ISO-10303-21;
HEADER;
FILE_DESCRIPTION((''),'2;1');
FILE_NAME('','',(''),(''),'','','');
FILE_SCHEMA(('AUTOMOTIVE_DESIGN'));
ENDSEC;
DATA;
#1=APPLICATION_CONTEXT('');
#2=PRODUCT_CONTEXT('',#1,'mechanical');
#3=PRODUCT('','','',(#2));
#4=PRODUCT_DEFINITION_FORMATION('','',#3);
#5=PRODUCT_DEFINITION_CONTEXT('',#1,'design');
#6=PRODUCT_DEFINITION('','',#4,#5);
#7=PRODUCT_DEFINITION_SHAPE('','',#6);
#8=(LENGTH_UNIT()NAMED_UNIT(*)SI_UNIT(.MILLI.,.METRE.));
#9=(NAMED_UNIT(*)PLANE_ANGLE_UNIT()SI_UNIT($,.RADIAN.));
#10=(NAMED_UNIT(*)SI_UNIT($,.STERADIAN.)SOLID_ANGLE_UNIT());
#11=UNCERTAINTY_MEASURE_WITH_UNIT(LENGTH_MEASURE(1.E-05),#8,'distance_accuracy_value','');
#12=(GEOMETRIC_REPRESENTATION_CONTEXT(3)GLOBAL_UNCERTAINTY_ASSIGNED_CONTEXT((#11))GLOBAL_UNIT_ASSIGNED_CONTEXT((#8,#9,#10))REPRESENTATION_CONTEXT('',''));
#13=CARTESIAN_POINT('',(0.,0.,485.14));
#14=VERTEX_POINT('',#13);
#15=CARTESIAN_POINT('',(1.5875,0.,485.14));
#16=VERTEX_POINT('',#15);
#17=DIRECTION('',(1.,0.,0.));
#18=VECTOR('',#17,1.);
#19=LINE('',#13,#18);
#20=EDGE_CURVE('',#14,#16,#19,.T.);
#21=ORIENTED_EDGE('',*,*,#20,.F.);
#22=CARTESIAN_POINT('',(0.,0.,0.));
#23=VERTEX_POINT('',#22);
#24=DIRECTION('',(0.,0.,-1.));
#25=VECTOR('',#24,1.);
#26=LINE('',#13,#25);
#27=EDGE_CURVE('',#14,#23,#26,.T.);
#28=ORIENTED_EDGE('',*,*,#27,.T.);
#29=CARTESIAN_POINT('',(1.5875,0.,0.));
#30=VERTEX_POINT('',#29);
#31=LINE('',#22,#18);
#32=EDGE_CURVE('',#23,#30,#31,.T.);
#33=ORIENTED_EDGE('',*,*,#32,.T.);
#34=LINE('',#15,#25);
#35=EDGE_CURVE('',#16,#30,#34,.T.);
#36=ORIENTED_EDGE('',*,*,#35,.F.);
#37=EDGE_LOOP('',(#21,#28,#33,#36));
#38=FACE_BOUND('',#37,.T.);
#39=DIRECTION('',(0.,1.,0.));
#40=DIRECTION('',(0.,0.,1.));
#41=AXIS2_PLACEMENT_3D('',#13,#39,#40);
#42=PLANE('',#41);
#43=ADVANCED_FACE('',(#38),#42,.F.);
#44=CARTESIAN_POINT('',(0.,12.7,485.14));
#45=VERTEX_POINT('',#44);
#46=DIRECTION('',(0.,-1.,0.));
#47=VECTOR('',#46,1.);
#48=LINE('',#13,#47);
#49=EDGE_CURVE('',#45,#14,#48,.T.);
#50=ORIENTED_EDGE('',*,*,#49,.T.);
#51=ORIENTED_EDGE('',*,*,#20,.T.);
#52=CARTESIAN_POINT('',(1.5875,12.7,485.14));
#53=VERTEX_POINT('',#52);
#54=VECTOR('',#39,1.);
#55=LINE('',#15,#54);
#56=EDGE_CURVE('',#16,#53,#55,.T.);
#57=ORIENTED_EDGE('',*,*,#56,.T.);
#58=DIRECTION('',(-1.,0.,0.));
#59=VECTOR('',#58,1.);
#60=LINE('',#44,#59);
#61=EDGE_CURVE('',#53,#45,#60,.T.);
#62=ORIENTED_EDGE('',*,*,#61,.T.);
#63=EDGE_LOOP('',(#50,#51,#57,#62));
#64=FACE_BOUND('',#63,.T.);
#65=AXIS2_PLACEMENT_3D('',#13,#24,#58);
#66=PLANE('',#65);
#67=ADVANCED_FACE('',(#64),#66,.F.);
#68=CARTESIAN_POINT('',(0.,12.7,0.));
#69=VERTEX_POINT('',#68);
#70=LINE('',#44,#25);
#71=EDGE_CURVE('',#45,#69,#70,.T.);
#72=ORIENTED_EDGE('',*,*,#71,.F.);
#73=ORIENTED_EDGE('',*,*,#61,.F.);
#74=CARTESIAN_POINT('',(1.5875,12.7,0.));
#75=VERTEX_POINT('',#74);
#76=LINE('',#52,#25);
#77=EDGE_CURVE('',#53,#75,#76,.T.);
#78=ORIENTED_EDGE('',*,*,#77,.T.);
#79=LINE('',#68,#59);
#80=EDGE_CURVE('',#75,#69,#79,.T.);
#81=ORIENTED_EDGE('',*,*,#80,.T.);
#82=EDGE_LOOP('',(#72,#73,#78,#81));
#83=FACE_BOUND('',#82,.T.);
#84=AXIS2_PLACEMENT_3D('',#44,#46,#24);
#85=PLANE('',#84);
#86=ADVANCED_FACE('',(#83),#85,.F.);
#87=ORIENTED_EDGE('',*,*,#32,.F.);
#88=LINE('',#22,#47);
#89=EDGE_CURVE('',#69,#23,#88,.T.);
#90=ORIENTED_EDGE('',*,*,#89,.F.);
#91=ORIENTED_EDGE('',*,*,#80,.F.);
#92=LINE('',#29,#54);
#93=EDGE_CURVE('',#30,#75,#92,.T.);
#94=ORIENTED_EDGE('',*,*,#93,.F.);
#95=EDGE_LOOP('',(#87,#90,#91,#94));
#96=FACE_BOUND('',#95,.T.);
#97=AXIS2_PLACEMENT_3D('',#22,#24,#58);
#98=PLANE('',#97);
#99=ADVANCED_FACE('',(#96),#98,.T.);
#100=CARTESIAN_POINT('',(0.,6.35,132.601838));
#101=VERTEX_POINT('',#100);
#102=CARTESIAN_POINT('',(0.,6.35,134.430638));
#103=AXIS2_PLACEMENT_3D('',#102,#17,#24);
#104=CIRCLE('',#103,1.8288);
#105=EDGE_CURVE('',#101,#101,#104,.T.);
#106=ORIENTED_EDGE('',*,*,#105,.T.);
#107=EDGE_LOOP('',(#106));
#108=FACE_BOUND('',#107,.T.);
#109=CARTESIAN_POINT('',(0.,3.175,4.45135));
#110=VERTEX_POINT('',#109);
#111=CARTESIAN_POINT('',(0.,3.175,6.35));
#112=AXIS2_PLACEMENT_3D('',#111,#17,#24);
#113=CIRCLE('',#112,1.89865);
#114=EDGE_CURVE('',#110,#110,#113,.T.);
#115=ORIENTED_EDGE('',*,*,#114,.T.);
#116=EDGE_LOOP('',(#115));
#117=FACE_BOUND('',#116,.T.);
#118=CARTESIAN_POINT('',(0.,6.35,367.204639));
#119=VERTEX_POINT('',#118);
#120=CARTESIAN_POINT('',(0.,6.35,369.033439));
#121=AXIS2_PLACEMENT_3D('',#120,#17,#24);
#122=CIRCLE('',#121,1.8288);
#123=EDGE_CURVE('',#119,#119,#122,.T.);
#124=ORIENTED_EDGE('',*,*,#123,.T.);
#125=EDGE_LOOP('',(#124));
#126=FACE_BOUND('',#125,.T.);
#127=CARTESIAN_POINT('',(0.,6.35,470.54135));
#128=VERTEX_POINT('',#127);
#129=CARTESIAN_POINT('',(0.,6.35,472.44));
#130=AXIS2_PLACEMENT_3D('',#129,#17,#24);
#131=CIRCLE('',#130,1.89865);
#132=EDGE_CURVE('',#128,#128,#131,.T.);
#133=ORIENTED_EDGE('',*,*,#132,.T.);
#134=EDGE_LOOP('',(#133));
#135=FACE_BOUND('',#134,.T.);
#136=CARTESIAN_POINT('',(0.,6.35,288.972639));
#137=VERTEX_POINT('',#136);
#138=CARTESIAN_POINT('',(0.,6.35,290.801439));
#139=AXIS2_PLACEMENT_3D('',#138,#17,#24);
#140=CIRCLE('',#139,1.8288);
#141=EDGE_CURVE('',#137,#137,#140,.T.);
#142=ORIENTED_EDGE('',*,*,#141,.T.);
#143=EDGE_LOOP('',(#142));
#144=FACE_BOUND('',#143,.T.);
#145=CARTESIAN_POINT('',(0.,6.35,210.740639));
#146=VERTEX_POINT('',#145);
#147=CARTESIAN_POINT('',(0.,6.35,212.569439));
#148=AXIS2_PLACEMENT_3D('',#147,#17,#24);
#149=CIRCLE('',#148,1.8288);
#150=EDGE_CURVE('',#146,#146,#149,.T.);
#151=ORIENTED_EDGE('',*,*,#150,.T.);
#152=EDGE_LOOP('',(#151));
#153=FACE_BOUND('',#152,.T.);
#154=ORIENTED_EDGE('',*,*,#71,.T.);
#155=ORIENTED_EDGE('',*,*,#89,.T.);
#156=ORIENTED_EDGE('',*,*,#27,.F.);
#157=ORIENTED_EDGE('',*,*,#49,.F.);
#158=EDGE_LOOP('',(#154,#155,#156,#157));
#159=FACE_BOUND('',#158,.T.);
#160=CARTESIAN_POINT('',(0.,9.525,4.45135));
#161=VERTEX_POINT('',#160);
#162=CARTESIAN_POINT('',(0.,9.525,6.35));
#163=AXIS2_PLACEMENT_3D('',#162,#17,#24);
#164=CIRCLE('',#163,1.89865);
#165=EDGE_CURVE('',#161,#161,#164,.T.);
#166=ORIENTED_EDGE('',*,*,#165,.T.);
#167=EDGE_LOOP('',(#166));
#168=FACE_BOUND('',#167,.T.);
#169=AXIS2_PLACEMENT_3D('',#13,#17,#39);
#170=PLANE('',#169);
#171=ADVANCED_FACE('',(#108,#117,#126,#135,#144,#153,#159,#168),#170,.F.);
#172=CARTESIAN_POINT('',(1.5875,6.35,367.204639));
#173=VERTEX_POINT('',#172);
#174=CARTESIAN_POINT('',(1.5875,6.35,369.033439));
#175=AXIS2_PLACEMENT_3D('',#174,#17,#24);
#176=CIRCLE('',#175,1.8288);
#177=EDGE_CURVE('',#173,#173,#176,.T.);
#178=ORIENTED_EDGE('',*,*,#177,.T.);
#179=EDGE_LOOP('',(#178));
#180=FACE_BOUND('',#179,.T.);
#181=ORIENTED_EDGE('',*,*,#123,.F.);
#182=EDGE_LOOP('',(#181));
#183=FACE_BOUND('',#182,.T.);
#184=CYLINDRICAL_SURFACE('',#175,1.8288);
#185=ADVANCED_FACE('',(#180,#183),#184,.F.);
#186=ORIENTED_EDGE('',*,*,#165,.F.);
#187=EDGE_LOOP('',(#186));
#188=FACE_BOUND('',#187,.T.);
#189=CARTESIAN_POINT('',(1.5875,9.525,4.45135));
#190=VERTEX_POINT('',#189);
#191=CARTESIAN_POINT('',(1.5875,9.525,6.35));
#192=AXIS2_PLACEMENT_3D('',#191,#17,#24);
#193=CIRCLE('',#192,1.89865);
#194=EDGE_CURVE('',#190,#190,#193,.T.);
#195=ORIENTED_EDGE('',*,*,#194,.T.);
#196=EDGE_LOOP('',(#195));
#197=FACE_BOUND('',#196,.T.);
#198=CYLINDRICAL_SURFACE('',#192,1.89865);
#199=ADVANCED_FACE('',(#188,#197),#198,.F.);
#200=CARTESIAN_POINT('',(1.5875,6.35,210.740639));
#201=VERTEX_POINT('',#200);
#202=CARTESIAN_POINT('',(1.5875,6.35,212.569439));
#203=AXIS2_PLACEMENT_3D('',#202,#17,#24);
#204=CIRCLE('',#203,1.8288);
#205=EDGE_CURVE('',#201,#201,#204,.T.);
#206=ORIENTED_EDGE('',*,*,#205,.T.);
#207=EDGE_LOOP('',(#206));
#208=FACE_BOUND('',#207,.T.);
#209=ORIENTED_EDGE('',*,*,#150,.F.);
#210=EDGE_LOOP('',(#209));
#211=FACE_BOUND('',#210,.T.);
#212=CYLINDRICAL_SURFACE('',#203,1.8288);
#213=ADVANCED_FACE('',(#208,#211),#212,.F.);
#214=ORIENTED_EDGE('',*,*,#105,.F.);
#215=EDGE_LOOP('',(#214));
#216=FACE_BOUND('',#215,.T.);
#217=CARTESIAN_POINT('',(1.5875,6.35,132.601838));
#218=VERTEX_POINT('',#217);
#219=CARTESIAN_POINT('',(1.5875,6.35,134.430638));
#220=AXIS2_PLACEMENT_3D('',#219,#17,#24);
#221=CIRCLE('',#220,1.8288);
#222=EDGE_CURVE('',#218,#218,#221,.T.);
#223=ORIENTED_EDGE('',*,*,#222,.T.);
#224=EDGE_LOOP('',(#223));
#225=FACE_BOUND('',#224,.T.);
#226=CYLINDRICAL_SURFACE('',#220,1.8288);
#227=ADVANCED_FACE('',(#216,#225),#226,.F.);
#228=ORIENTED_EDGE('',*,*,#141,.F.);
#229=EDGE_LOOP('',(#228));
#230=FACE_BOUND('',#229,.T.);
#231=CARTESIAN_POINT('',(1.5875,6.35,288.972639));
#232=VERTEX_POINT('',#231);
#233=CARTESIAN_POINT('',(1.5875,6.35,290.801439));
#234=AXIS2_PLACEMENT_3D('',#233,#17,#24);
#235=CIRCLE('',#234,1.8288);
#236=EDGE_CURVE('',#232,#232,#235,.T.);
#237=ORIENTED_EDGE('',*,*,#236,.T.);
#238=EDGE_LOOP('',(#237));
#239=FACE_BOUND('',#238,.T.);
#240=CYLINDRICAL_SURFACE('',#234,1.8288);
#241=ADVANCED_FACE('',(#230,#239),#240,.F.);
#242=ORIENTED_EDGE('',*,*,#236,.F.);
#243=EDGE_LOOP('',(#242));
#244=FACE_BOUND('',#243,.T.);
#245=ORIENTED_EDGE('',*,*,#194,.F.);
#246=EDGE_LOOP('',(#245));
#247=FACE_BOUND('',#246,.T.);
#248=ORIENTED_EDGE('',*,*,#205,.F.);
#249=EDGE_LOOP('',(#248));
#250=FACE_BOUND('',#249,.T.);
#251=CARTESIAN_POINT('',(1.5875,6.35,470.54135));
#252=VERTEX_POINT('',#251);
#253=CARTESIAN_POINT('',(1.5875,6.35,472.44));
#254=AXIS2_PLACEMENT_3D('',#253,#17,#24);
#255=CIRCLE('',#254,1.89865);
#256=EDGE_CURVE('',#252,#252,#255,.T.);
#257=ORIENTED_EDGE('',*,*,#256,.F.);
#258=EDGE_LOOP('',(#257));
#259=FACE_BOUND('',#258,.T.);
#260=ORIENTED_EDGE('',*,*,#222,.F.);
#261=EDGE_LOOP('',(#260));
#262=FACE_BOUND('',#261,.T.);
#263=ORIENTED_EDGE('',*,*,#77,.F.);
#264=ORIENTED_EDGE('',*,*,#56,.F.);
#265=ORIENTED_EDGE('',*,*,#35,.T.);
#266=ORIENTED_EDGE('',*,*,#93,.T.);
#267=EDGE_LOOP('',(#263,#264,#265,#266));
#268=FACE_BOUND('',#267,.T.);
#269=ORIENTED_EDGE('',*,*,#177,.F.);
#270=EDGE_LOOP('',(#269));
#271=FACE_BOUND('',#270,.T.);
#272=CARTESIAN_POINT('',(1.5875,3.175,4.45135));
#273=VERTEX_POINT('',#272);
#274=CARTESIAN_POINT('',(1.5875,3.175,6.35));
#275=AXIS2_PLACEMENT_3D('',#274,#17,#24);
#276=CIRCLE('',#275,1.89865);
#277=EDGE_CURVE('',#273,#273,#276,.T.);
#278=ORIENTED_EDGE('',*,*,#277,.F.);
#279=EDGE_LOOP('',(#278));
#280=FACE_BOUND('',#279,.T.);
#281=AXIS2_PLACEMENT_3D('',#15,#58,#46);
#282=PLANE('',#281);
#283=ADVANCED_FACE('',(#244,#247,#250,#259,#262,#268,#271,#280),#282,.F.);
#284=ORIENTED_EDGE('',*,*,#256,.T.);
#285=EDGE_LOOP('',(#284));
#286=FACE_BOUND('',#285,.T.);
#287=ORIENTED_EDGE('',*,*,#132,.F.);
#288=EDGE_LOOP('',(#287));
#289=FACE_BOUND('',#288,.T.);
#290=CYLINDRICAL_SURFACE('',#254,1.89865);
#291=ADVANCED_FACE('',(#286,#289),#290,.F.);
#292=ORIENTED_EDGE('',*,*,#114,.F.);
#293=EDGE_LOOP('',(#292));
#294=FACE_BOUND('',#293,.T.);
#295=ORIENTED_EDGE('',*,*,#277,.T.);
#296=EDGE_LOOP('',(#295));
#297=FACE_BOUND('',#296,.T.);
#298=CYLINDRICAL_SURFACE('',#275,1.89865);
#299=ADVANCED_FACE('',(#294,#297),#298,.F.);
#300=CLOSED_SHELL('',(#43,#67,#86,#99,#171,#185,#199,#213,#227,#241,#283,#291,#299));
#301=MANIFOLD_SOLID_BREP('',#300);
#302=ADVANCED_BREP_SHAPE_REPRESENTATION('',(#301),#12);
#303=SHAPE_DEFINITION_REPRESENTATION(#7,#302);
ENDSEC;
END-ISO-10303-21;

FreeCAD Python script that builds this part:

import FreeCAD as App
import Part
import Sketcher

V = App.Vector
Q = App.Units.Quantity


def add_polygon(sketch, points):
    """Adds a closed chain of lines whose ends are joined by coincident constraints."""
    first, n = sketch.GeometryCount, len(points)
    for a, b in zip(points, points[1:] + points[:1]):
        sketch.addGeometry(Part.LineSegment(App.Vector(*a, 0), App.Vector(*b, 0)), False)
    for i in range(n):
        sketch.addConstraint(Sketcher.Constraint("Coincident", first + i, 2, first + (i + 1) % n, 1))

doc = App.newDocument("Part")
body = doc.addObject("PartDesign::Body", "Body")

sketch1 = body.newObject("Sketcher::SketchObject", "Sketch")
sketch1.AttachmentSupport = (doc.getObject("XY_Plane"), [""])
sketch1.MapMode = "FlatFace"
add_polygon(sketch1, [(0, 12.7), (0, 0), (1.5875, 0), (1.5875, 12.7)])
sketch1.addConstraint([
    Sketcher.Constraint("Vertical", 0),
    Sketcher.Constraint("Horizontal", 1),
    Sketcher.Constraint("Vertical", 2),
    Sketcher.Constraint("Horizontal", 3),
    Sketcher.Constraint("Coincident", 0, 2, -1, 1),
    Sketcher.Constraint("DistanceY", 0, 2, 0, 1, Q("0.5 in")),
    Sketcher.Constraint("DistanceX", 1, 1, 1, 2, Q("0.0625 in")),
])
pad1 = body.newObject("PartDesign::Pad", "Pad")
pad1.Profile = sketch1
pad1.Length = Q("19.1 in")

sketch2 = body.newObject("Sketcher::SketchObject", "Sketch001")
sketch2.AttachmentSupport = (doc.getObject("YZ_Plane"), [""])
sketch2.MapMode = "FlatFace"
sketch2.AttachmentOffset = App.Placement(V(0, 0, 0.0625 * 25.4), App.Rotation())
sketch2.addGeometry([
    Part.Circle(V(9.525, 6.35, 0), V(0, 0, 1), 1.89865),
    Part.Circle(V(3.175, 6.35, 0), V(0, 0, 1), 1.89865),
], False)
sketch2.addConstraint([
    Sketcher.Constraint("Equal", 0, 1),
    Sketcher.Constraint("Horizontal", 0, 3, 1, 3),
    Sketcher.Constraint("Diameter", 0, Q("0.1495 in")),
    Sketcher.Constraint("DistanceY", -1, 1, 0, 3, Q("0.25 in")),
    Sketcher.Constraint("DistanceX", 1, 3, 0, 3, Q("0.25 in")),
    Sketcher.Constraint("DistanceX", -1, 1, 0, 3, Q("0.375 in")),
])
doc.recompute()
hole = body.newObject("PartDesign::Hole", "Hole")
hole.Profile = sketch2
hole.ThreadType = "None"
hole.Diameter = Q("0.1495 in")
hole.DepthType = "ThroughAll"

sketch3 = body.newObject("Sketcher::SketchObject", "Sketch002")
sketch3.AttachmentSupport = (doc.getObject("YZ_Plane"), [""])
sketch3.MapMode = "FlatFace"
sketch3.AttachmentOffset = App.Placement(V(0, 0, 0.0625 * 25.4), App.Rotation())
sketch3.addGeometry(Part.Circle(V(6.35, 472.44, 0), V(0, 0, 1), 1.89865), False)
sketch3.addConstraint([
    Sketcher.Constraint("Diameter", 0, Q("0.1495 in")),
    Sketcher.Constraint("DistanceY", -1, 1, 0, 3, Q("18.6 in")),
    Sketcher.Constraint("DistanceX", -1, 1, 0, 3, Q("0.25 in")),
])
doc.recompute()
hole2 = body.newObject("PartDesign::Hole", "Hole001")
hole2.Profile = sketch3
hole2.ThreadType = "None"
hole2.Diameter = Q("0.1495 in")
hole2.DepthType = "ThroughAll"

sketch4 = body.newObject("Sketcher::SketchObject", "Sketch003")
sketch4.AttachmentSupport = (doc.getObject("YZ_Plane"), [""])
sketch4.MapMode = "FlatFace"
sketch4.AttachmentOffset = App.Placement(V(0, 0, 0.0625 * 25.4), App.Rotation())
sketch4.addGeometry([
    Part.Circle(V(6.35, 369.033439, 0), V(0, 0, 1), 1.8288),
    Part.Circle(V(6.35, 290.801439, 0), V(0, 0, 1), 1.8288),
    Part.Circle(V(6.35, 212.569439, 0), V(0, 0, 1), 1.8288),
    Part.Circle(V(6.35, 134.430638, 0), V(0, 0, 1), 1.8288),
], False)
sketch4.addConstraint([
    Sketcher.Constraint("Equal", 0, 1),
    Sketcher.Constraint("Equal", 1, 2),
    Sketcher.Constraint("Equal", 2, 3),
    Sketcher.Constraint("Vertical", 0, 3, 1, 3),
    Sketcher.Constraint("Vertical", 1, 3, 2, 3),
    Sketcher.Constraint("Vertical", 2, 3, 3, 3),
    Sketcher.Constraint("Diameter", 0, Q("0.144 in")),
    Sketcher.Constraint("DistanceX", -1, 1, 0, 3, Q("0.25 in")),
    Sketcher.Constraint("DistanceY", 1, 3, 0, 3, Q("3.08 in")),
    Sketcher.Constraint("DistanceY", 2, 3, 1, 3, Q("3.08 in")),
    Sketcher.Constraint("DistanceY", 3, 3, 2, 3, Q("78.138801 mm")),
    Sketcher.Constraint("DistanceY", -1, 1, 0, 3, Q("369.033439 mm")),
])
doc.recompute()
hole3 = body.newObject("PartDesign::Hole", "Hole002")
hole3.Profile = sketch4
hole3.ThreadType = "None"
hole3.Diameter = Q("0.144 in")
hole3.DepthType = "ThroughAll"

doc.recompute()
